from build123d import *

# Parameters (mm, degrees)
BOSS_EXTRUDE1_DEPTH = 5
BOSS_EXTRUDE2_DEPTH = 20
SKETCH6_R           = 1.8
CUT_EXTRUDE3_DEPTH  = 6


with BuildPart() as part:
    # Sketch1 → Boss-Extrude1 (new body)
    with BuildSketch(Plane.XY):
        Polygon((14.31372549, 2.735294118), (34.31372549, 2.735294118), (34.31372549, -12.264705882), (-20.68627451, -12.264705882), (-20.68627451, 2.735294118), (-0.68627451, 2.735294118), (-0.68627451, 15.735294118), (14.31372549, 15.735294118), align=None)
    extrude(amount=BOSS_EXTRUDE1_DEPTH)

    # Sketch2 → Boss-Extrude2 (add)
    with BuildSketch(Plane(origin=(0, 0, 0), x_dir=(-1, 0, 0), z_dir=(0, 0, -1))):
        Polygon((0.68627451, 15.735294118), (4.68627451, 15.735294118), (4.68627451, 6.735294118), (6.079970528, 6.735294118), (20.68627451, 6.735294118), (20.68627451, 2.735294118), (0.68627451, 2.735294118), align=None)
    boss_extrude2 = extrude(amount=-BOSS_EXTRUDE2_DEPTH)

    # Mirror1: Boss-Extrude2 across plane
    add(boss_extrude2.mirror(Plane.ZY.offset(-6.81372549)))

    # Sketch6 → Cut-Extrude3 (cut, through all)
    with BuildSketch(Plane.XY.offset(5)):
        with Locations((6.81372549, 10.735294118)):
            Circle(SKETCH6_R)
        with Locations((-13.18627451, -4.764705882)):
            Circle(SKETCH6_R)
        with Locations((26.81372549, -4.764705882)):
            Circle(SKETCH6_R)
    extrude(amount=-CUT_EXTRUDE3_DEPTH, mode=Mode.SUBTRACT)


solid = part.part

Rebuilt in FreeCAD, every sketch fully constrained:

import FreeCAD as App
import Part
import Sketcher
Q = App.Units.Quantity


def add_polygon(sketch, points):
    """Adds a closed chain of lines whose ends are joined by coincident constraints."""
    first, n = sketch.GeometryCount, len(points)
    for a, b in zip(points, points[1:] + points[:1]):
        sketch.addGeometry(Part.LineSegment(App.Vector(*a, 0), App.Vector(*b, 0)), False)
    for i in range(n):
        sketch.addConstraint(Sketcher.Constraint("Coincident", first + i, 2, first + (i + 1) % n, 1))

doc = App.newDocument("Part")
body = doc.addObject("PartDesign::Body", "Body")

sketch1 = body.newObject("Sketcher::SketchObject", "Sketch")
sketch1.AttachmentSupport = (doc.getObject("XY_Plane"), [""])
sketch1.MapMode = "FlatFace"
add_polygon(sketch1, [(34, 3), (14, 3), (14, 16), (-1, 16), (-1, 3), (-21, 3), (-21, -12), (34, -12)])
sketch1.addConstraint(Sketcher.Constraint("Horizontal", 0))
sketch1.addConstraint(Sketcher.Constraint("Vertical", 1))
sketch1.addConstraint(Sketcher.Constraint("Horizontal", 2))
sketch1.addConstraint(Sketcher.Constraint("Vertical", 3))
sketch1.addConstraint(Sketcher.Constraint("Horizontal", 4))
sketch1.addConstraint(Sketcher.Constraint("Vertical", 5))
sketch1.addConstraint(Sketcher.Constraint("Horizontal", 6))
sketch1.addConstraint(Sketcher.Constraint("Vertical", 7))
sketch1.addConstraint(Sketcher.Constraint("Horizontal", 0, 2, 3, 2))
sketch1.addConstraint(Sketcher.Constraint("Equal", 0, 4))
sketch1.addConstraint(Sketcher.Constraint("Equal", 2, 5))
sketch1.addConstraint(Sketcher.Constraint("DistanceX", 0, 2, 0, 1, Q("20 mm")))
sketch1.addConstraint(Sketcher.Constraint("DistanceX", 2, 2, 2, 1, Q("15 mm")))
sketch1.addConstraint(Sketcher.Constraint("DistanceY", 1, 1, 1, 2, Q("13 mm")))
sketch1.addConstraint(Sketcher.Constraint("DistanceX", -1, 1, 0, 2, Q("14.313725 mm")))
sketch1.addConstraint(Sketcher.Constraint("DistanceY", -1, 1, 0, 2, Q("2.735294 mm")))
pad1 = body.newObject("PartDesign::Pad", "Pad")
pad1.Profile = sketch1
pad1.Length = 5

sketch2 = body.newObject("Sketcher::SketchObject", "Sketch001")
sketch2.AttachmentSupport = (doc.getObject("XY_Plane"), [""])
sketch2.MapMode = "FlatFace"
add_polygon(sketch2, [(-4.7, 15.7), (-0.7, 15.7), (-0.7, 2.7), (-20.7, 2.7), (-20.7, 6.7), (-4.7, 6.7)])
sketch2.addConstraint(Sketcher.Constraint("Horizontal", 0))
sketch2.addConstraint(Sketcher.Constraint("Vertical", 1))
sketch2.addConstraint(Sketcher.Constraint("Horizontal", 2))
sketch2.addConstraint(Sketcher.Constraint("Vertical", 3))
sketch2.addConstraint(Sketcher.Constraint("Horizontal", 4))
sketch2.addConstraint(Sketcher.Constraint("Vertical", 5))
sketch2.addConstraint(Sketcher.Constraint("Equal", 0, 3))
sketch2.addConstraint(Sketcher.Constraint("DistanceX", 0, 1, 0, 2, Q("4 mm")))
sketch2.addConstraint(Sketcher.Constraint("DistanceX", 2, 2, 2, 1, Q("20 mm")))
sketch2.addConstraint(Sketcher.Constraint("DistanceY", 1, 2, 1, 1, Q("13 mm")))
sketch2.addConstraint(Sketcher.Constraint("DistanceX", 0, 2, -1, 1, Q("0.686275 mm")))
sketch2.addConstraint(Sketcher.Constraint("DistanceY", -1, 1, 0, 2, Q("15.735294 mm")))
pad2 = body.newObject("PartDesign::Pad", "Pad001")
pad2.Profile = sketch2
pad2.Length = 20
doc.recompute()

datumplane = body.newObject("PartDesign::Plane", "DatumPlane")
datumplane.AttachmentSupport = (doc.getObject("YZ_Plane"), [""])
datumplane.MapMode = "FlatFace"
datumplane.AttachmentOffset = App.Placement(App.Vector(0, 0, 6.813725), App.Rotation())
mirrored = body.newObject("PartDesign::Mirrored", "Mirrored")
mirrored.Originals = [pad2]
mirrored.MirrorPlane = (datumplane, [""])
body.Tip = mirrored

sketch3 = body.newObject("Sketcher::SketchObject", "Sketch002")
sketch3.AttachmentSupport = (doc.getObject("XY_Plane"), [""])
sketch3.MapMode = "FlatFace"
sketch3.AttachmentOffset = App.Placement(App.Vector(0, 0, 5), App.Rotation())
sketch3.addGeometry(Part.Circle(App.Vector(6.8, 10.7, 0), App.Vector(0, 0, 1), 1.8), False)
sketch3.addGeometry(Part.Circle(App.Vector(-13.2, -4.8, 0), App.Vector(0, 0, 1), 1.8), False)
sketch3.addGeometry(Part.Circle(App.Vector(26.8, -4.8, 0), App.Vector(0, 0, 1), 1.8), False)
sketch3.addConstraint(Sketcher.Constraint("Equal", 0, 1))
sketch3.addConstraint(Sketcher.Constraint("Equal", 1, 2))
sketch3.addConstraint(Sketcher.Constraint("Horizontal", 1, 3, 2, 3))
sketch3.addConstraint(Sketcher.Constraint("Diameter", 0, Q("3.6 mm")))
sketch3.addConstraint(Sketcher.Constraint("DistanceX", 1, 3, 0, 3, Q("20 mm")))
sketch3.addConstraint(Sketcher.Constraint("DistanceX", 0, 3, 2, 3, Q("20 mm")))
sketch3.addConstraint(Sketcher.Constraint("DistanceY", 1, 3, 0, 3, Q("15.5 mm")))
sketch3.addConstraint(Sketcher.Constraint("DistanceX", -1, 1, 0, 3, Q("6.813725 mm")))
sketch3.addConstraint(Sketcher.Constraint("DistanceY", -1, 1, 0, 3, Q("10.735294 mm")))
pocket1 = body.newObject("PartDesign::Pocket", "Pocket")
pocket1.Profile = sketch3
pocket1.Type = "ThroughAll"

doc.recompute()
